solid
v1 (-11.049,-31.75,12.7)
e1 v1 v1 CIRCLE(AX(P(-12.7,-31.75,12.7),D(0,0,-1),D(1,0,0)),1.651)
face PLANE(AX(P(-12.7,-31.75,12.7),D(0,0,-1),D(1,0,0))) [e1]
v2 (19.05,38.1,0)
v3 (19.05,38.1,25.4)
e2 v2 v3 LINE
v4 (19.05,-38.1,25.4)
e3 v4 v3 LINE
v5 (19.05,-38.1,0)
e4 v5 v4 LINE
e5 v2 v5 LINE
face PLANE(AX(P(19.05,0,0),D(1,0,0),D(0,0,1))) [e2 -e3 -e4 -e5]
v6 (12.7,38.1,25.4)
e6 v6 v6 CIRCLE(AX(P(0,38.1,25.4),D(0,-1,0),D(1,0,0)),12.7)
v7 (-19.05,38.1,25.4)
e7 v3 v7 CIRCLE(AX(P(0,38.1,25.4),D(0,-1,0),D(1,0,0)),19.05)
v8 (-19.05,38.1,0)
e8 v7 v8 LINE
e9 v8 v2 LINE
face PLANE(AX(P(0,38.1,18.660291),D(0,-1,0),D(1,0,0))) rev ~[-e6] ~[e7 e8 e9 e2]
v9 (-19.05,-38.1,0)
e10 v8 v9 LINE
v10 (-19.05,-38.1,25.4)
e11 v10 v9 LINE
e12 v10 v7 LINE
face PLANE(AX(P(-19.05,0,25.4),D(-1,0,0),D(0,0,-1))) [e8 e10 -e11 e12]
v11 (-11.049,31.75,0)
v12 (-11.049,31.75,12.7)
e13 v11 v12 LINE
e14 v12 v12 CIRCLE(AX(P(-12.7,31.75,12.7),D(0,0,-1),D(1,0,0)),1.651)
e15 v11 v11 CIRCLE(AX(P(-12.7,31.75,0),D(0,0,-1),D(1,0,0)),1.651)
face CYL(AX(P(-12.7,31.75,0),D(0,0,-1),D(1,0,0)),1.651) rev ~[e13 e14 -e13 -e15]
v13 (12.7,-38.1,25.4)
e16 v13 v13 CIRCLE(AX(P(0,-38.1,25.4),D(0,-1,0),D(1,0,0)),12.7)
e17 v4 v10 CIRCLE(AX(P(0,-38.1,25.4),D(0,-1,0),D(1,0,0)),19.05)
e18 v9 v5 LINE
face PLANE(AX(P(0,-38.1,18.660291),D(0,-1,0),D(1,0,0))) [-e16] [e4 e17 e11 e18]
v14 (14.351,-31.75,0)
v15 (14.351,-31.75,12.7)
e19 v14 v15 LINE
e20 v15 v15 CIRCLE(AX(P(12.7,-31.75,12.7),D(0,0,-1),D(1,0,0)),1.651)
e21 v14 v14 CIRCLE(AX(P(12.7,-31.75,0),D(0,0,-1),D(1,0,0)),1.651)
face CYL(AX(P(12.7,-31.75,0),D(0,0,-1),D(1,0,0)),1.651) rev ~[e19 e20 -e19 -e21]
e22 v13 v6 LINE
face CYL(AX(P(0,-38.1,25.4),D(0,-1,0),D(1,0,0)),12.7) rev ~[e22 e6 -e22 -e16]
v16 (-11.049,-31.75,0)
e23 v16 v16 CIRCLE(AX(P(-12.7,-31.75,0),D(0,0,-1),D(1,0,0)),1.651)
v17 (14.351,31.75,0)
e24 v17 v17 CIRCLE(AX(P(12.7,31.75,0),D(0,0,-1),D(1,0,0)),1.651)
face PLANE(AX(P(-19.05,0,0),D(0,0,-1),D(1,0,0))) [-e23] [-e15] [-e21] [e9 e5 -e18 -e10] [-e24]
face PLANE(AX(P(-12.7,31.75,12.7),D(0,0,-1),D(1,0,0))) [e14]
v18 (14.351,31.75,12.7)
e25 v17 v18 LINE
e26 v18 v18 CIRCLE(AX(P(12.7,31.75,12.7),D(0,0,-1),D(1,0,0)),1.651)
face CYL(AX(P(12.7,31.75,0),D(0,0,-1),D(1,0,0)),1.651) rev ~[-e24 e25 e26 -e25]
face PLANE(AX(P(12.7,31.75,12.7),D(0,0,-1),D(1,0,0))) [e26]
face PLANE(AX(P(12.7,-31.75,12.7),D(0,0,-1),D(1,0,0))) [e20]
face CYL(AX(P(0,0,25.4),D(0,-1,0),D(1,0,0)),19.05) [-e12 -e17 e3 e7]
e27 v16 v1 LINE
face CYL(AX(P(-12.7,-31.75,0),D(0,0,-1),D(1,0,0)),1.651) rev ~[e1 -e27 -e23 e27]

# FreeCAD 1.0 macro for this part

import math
import FreeCAD as App
import Part
import Sketcher
Q = App.Units.Quantity

doc = App.newDocument("Part")
body = doc.addObject("PartDesign::Body", "Body")

# Sketch on XZ plane
sketch1 = doc.addObject("Sketcher::SketchObject", "Sketch")
body.addObject(sketch1)
sketch1.AttachmentSupport = (doc.XZ_Plane, [""])
sketch1.MapMode = "FlatFace"
sketch1.addGeometry([
    Part.LineSegment(App.Vector(-19, 25, 0), App.Vector(-19, 0, 0)),
    Part.LineSegment(App.Vector(-19, 0, 0), App.Vector(19, 0, 0)),
    Part.LineSegment(App.Vector(19, 0, 0), App.Vector(19, 25, 0)),
    Part.ArcOfCircle(Part.Circle(App.Vector(0, 25, 0), App.Vector(0, 0, 1), 19), math.radians(0), math.radians(180)),
], False)
sketch1.addConstraint([
    Sketcher.Constraint("Coincident", 0, 2, 1, 1),
    Sketcher.Constraint("Coincident", 1, 2, 2, 1),
    Sketcher.Constraint("Tangent", 2, 2, 3, 1),
    Sketcher.Constraint("Tangent", 3, 2, 0, 1),
    Sketcher.Constraint("Vertical", 0),
    Sketcher.Constraint("Horizontal", 1),
    Sketcher.Constraint("Vertical", 2),
    Sketcher.Constraint("Symmetric", 0, 2, 1, 2, -1, 1),
    Sketcher.Constraint("DistanceY", 0, 2, 0, 1, Q("1 in")),
    Sketcher.Constraint("Radius", 3, Q("0.75 in")),
])
pad1 = doc.addObject("PartDesign::Pad", "Pad")
body.addObject(pad1)
pad1.Profile = sketch1
pad1.Length = Q("3 in")
pad1.Midplane = True

# Sketch on XZ plane
sketch2 = doc.addObject("Sketcher::SketchObject", "Sketch001")
body.addObject(sketch2)
sketch2.AttachmentSupport = (doc.XZ_Plane, [""])
sketch2.MapMode = "FlatFace"
sketch2.AttachmentOffset = App.Placement(App.Vector(0, 0, 1.5 * 25.4), App.Rotation())
sketch2.addGeometry(Part.Circle(App.Vector(0, 25, 0), App.Vector(0, 0, 1), 13), False)
sketch2.addConstraint([
    Sketcher.Constraint("PointOnObject", 0, 3, -2),
    Sketcher.Constraint("Diameter", 0, Q("1 in")),
    Sketcher.Constraint("DistanceY", -1, 1, 0, 3, Q("1 in")),
])
pocket1 = doc.addObject("PartDesign::Pocket", "Pocket")
body.addObject(pocket1)
pocket1.Profile = sketch2
pocket1.Length = Q("3.99 in")

# Sketch on XY plane
sketch3 = doc.addObject("Sketcher::SketchObject", "Sketch002")
body.addObject(sketch3)
sketch3.AttachmentSupport = (doc.XY_Plane, [""])
sketch3.MapMode = "FlatFace"
sketch3.addGeometry([
    Part.Circle(App.Vector(12.7, -31.8, 0), App.Vector(0, 0, 1), 1.7),
    Part.Circle(App.Vector(-12.7, -31.8, 0), App.Vector(0, 0, 1), 1.7),
    Part.Circle(App.Vector(-12.7, 31.8, 0), App.Vector(0, 0, 1), 1.7),
    Part.Circle(App.Vector(12.7, 31.8, 0), App.Vector(0, 0, 1), 1.7),
], False)
sketch3.addConstraint([
    Sketcher.Constraint("Equal", 0, 1),
    Sketcher.Constraint("Equal", 1, 2),
    Sketcher.Constraint("Equal", 2, 3),
    Sketcher.Constraint("Symmetric", 0, 3, 2, 3, -1, 1),
    Sketcher.Constraint("Symmetric", 1, 3, 3, 3, -1, 1),
    Sketcher.Constraint("Symmetric", 0, 3, 1, 3, -2),
    Sketcher.Constraint("Diameter", 0, Q("0.13 in")),
    Sketcher.Constraint("DistanceX", 1, 3, 0, 3, Q("1 in")),
    Sketcher.Constraint("DistanceY", 1, 3, 2, 3, Q("2.5 in")),
])
pocket2 = doc.addObject("PartDesign::Pocket", "Pocket001")
body.addObject(pocket2)
pocket2.Profile = sketch3
pocket2.Length = Q("0.5 in")
pocket2.Reversed = True

doc.recompute()
